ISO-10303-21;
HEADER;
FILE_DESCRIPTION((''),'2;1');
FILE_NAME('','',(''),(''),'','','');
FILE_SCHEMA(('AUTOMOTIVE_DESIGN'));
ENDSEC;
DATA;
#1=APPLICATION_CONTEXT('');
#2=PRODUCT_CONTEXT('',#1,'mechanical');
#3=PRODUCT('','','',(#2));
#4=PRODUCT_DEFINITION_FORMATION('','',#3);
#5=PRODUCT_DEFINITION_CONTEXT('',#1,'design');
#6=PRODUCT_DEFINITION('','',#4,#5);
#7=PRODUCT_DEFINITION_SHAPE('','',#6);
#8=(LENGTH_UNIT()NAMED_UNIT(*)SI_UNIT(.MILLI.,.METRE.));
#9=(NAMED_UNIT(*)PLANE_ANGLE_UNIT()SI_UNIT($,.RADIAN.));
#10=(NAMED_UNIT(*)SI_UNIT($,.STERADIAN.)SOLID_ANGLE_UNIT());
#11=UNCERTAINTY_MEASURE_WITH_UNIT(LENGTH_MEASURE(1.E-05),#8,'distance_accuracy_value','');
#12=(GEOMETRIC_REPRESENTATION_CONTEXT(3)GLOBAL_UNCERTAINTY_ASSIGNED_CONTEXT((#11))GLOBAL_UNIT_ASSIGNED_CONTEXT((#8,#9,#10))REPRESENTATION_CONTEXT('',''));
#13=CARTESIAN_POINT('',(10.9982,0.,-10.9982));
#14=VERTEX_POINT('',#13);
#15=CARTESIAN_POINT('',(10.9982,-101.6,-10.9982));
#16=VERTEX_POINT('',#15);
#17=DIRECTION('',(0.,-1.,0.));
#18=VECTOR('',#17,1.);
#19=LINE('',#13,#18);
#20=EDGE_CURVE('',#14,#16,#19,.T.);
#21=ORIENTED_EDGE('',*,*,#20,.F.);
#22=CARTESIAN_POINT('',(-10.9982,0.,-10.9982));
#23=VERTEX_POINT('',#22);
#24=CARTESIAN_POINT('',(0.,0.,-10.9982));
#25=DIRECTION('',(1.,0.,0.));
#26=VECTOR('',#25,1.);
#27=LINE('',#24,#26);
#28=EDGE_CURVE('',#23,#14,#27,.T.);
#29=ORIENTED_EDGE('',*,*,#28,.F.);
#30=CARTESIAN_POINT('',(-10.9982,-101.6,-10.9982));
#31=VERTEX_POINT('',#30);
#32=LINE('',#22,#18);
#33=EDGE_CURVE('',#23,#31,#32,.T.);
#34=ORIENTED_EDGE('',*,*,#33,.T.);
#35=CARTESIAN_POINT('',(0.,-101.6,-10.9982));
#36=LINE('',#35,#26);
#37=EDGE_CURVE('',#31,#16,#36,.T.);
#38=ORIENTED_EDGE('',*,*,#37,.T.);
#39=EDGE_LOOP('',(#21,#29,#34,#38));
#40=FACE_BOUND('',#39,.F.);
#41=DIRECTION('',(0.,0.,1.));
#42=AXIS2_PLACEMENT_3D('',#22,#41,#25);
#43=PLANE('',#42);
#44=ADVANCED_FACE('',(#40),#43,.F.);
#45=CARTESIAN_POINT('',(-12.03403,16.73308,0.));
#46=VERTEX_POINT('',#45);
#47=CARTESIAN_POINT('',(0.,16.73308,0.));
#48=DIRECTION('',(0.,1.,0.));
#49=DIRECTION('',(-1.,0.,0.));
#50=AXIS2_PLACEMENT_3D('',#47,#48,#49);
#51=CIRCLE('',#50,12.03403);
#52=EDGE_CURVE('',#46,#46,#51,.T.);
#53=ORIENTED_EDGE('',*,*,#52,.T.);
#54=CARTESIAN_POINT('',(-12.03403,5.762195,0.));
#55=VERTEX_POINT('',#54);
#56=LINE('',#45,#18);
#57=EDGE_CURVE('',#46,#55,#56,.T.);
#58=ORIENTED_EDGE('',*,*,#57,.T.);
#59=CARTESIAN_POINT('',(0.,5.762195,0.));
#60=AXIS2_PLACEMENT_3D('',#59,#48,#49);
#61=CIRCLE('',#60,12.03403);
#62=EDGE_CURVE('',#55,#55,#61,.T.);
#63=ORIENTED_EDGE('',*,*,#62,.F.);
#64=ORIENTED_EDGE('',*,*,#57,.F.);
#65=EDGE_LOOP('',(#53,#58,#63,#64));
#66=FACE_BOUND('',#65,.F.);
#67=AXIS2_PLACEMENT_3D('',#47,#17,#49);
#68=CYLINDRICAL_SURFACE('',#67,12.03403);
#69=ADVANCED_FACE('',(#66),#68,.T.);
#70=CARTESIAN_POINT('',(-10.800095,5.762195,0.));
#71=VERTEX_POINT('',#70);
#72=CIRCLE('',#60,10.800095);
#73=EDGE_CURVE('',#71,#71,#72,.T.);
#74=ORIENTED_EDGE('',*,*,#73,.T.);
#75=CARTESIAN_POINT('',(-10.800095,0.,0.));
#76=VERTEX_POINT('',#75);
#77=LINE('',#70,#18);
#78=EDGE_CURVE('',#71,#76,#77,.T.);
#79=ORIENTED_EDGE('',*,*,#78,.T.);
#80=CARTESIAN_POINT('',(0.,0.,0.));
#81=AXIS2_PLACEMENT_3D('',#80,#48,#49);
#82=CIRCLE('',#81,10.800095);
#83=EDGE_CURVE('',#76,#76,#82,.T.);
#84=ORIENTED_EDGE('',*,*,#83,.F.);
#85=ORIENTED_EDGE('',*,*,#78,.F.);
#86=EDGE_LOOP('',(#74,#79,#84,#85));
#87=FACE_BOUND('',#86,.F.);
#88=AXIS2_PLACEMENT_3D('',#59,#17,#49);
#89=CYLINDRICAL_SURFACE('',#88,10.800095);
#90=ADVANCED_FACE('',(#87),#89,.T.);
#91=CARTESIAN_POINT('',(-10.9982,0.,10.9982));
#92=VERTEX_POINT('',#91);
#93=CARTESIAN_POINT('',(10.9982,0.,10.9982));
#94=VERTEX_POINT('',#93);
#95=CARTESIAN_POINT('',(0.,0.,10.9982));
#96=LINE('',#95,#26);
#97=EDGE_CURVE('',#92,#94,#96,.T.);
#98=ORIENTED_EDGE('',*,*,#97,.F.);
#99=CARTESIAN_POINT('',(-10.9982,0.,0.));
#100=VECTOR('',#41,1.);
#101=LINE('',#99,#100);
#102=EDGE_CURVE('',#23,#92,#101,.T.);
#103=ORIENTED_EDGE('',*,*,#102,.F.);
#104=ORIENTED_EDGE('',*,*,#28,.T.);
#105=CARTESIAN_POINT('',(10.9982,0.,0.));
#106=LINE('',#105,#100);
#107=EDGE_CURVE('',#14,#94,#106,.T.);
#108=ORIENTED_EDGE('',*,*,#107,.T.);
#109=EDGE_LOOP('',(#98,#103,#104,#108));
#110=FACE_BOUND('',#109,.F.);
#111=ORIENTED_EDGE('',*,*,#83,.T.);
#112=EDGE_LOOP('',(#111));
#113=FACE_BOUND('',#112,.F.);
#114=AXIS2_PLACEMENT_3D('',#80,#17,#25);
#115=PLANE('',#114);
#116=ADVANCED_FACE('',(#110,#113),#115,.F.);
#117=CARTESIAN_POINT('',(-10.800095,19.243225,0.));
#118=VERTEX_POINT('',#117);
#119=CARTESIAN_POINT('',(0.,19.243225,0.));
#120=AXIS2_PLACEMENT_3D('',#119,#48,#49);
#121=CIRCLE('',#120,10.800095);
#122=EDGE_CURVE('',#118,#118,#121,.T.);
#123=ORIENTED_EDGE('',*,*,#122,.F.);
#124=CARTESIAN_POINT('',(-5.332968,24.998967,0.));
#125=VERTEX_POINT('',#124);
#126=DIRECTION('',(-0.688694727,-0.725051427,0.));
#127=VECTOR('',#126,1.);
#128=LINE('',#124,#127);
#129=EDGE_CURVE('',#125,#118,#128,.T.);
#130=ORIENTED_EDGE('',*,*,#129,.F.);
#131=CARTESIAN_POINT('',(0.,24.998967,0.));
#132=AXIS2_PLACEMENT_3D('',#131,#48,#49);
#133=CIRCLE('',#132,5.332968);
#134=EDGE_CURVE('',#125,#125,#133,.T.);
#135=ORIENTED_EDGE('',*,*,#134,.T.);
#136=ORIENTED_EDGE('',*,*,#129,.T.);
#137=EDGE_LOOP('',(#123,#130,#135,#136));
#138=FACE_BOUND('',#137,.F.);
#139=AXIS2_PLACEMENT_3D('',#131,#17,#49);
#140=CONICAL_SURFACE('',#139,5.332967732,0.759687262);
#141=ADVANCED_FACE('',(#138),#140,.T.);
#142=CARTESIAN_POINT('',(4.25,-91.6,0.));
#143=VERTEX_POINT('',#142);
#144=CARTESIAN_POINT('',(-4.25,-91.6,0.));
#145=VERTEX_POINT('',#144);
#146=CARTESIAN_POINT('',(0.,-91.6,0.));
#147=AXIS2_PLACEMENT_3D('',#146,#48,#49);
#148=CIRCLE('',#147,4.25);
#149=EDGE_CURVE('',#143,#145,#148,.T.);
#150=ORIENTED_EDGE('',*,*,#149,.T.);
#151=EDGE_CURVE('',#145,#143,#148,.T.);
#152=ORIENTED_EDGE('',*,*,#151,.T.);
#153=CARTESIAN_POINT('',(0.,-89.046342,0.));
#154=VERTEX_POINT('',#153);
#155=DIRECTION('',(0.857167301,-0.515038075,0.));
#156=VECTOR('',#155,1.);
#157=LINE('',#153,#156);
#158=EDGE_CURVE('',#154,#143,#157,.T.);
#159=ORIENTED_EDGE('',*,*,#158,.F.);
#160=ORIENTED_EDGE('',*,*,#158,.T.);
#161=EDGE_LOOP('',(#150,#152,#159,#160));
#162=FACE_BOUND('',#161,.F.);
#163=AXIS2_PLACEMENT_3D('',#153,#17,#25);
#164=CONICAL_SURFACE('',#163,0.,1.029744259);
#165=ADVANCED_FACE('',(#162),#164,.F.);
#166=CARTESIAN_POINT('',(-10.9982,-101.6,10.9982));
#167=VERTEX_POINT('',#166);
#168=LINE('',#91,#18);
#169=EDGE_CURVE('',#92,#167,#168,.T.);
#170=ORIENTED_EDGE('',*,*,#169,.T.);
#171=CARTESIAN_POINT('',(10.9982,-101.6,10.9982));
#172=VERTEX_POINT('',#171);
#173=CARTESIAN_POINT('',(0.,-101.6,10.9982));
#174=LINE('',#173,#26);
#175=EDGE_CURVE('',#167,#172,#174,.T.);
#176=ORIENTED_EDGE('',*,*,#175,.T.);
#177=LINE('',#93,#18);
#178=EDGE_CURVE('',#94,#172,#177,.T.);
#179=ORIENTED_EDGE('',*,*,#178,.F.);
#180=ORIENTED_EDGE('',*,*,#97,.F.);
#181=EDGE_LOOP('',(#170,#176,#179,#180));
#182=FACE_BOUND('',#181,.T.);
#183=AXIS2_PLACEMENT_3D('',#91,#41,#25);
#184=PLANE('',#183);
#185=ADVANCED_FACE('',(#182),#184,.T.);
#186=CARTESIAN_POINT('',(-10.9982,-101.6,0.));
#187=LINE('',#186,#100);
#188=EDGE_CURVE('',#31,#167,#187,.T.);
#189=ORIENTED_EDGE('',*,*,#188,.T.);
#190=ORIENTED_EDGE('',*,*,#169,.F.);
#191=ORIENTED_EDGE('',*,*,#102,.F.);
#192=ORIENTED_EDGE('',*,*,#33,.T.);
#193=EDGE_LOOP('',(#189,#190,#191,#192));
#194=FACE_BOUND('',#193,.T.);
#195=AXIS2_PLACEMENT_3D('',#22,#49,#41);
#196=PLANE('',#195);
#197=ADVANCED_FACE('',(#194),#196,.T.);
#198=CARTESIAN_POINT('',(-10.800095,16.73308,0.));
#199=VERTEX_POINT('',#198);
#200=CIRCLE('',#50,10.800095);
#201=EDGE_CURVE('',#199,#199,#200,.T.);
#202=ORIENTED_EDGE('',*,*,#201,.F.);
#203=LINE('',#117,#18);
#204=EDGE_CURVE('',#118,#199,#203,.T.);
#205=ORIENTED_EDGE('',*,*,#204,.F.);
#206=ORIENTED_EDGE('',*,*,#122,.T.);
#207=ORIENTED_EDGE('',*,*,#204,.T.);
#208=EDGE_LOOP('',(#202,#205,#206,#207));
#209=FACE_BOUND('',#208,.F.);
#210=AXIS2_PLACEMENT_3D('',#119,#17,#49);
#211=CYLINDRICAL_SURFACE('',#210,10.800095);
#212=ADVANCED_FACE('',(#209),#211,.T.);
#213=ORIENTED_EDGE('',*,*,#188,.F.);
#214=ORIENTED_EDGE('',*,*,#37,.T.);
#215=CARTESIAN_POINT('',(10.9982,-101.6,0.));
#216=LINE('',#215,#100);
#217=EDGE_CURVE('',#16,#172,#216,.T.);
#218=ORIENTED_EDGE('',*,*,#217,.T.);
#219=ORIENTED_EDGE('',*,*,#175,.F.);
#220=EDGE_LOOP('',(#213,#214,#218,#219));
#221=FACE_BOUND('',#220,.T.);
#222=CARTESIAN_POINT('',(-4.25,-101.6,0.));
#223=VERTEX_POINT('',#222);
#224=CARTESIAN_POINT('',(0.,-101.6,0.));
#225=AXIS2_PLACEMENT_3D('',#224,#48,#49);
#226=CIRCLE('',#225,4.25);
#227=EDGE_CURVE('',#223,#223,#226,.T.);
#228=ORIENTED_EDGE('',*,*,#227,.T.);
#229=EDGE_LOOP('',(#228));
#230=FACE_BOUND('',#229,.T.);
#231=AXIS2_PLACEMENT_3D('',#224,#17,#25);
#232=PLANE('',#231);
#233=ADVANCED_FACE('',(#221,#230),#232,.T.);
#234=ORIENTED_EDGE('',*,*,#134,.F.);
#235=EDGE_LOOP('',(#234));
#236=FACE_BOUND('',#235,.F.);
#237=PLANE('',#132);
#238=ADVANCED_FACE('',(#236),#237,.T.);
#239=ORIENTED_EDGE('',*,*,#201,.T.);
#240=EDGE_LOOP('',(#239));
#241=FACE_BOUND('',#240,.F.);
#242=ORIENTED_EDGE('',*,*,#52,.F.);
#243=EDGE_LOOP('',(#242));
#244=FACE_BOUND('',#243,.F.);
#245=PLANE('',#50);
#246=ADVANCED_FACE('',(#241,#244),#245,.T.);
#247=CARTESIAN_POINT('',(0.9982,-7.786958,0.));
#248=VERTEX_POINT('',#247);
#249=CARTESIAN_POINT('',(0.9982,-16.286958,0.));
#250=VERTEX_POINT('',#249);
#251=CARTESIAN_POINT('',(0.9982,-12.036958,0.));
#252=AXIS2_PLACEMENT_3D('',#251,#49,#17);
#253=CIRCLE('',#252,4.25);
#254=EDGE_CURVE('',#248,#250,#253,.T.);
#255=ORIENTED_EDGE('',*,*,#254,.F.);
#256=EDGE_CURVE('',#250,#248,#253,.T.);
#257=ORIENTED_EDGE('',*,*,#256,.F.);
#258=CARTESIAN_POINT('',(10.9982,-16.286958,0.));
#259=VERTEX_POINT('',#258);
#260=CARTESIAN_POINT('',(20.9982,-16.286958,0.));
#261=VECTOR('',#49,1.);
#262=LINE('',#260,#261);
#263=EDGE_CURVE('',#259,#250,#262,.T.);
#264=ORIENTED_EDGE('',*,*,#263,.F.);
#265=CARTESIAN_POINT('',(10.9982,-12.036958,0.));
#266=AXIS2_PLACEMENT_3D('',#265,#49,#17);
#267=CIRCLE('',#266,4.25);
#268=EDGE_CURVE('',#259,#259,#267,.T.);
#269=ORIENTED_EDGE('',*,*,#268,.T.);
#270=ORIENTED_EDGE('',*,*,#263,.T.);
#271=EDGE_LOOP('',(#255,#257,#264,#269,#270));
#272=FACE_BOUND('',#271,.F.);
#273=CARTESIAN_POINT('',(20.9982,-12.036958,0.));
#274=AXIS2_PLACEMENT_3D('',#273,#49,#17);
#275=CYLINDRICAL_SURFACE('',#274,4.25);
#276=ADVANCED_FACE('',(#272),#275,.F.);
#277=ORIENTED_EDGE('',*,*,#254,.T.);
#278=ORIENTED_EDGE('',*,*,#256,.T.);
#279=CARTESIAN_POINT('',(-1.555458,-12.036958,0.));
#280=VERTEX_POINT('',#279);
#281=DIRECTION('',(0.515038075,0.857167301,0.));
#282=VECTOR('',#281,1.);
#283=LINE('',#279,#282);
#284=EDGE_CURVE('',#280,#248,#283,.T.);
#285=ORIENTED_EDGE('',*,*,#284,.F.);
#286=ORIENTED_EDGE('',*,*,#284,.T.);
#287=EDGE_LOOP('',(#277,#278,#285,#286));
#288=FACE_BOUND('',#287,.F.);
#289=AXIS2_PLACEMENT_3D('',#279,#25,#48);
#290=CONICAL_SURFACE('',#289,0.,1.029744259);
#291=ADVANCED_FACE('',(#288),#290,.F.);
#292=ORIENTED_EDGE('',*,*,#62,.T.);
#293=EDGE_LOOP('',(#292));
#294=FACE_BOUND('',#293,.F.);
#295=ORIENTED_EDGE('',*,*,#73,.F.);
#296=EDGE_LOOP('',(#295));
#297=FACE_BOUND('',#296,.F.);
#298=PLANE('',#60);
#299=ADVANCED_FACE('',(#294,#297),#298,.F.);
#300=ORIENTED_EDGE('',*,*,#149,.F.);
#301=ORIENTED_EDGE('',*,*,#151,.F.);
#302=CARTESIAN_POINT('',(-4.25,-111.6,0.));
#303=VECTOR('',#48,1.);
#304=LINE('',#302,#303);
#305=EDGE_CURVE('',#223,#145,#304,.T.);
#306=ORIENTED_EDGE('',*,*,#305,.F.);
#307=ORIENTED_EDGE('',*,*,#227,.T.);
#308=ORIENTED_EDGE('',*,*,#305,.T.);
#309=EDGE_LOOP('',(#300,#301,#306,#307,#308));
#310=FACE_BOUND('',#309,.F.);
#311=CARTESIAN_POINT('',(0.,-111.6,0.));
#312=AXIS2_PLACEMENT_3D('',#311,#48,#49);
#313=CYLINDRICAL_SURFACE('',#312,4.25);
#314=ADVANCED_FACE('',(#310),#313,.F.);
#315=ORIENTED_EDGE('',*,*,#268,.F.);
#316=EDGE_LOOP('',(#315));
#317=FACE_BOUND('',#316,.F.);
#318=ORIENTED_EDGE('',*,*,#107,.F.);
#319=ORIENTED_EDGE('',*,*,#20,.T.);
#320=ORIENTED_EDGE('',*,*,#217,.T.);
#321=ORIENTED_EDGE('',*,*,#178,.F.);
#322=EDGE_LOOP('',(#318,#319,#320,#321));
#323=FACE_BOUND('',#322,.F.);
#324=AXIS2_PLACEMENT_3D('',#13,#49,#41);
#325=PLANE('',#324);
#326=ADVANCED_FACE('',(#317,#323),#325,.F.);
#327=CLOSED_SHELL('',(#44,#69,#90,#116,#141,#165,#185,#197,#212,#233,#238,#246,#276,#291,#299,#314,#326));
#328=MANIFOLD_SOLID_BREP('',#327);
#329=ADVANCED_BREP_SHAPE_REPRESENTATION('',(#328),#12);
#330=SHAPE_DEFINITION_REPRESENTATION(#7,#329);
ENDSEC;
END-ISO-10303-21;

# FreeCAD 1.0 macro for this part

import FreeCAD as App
import Part
import Sketcher
Q = App.Units.Quantity


def add_polygon(sketch, points):
    """Adds a closed chain of lines whose ends are joined by coincident constraints."""
    first, n = sketch.GeometryCount, len(points)
    for a, b in zip(points, points[1:] + points[:1]):
        sketch.addGeometry(Part.LineSegment(App.Vector(*a, 0), App.Vector(*b, 0)), False)
    for i in range(n):
        sketch.addConstraint(Sketcher.Constraint("Coincident", first + i, 2, first + (i + 1) % n, 1))

doc = App.newDocument("Part")
body = doc.addObject("PartDesign::Body", "Body")

# Sketch on XZ plane
sketch1 = body.newObject("Sketcher::SketchObject", "Sketch")
sketch1.AttachmentSupport = (doc.getObject("XZ_Plane"), [""])
sketch1.MapMode = "FlatFace"
add_polygon(sketch1, [(-10.9982, 10.9982), (-10.9982, -10.9982), (10.9982, -10.9982), (10.9982, 10.9982)])  # lines 0-3
sketch1.addConstraint(Sketcher.Constraint("Vertical", 0))
sketch1.addConstraint(Sketcher.Constraint("Horizontal", 1))
sketch1.addConstraint(Sketcher.Constraint("Vertical", 2))
sketch1.addConstraint(Sketcher.Constraint("Horizontal", 3))
sketch1.addConstraint(Sketcher.Constraint("Symmetric", 0, 2, 2, 2, -1, 1))
sketch1.addConstraint(Sketcher.Constraint("Equal", 3, 0))
sketch1.addConstraint(Sketcher.Constraint("DistanceX", 1, 1, 1, 2, Q("21.9964 mm")))
pad1 = body.newObject("PartDesign::Pad", "Pad")
pad1.Profile = sketch1
pad1.Length = 101.6

# Sketch on XY plane
sketch2 = body.newObject("Sketcher::SketchObject", "Sketch001")
sketch2.AttachmentSupport = (doc.getObject("XY_Plane"), [""])
sketch2.MapMode = "FlatFace"
add_polygon(sketch2, [(-10.800095, 0), (0, 0), (0, 24.998967), (-5.332968, 24.998967), (-10.800095, 19.243225), (-10.800095, 16.73308), (-12.03403, 16.73308), (-12.03403, 5.762195), (-10.800095, 5.762195)])  # lines 0-8
sketch2.addConstraint(Sketcher.Constraint("Horizontal", 0))
sketch2.addConstraint(Sketcher.Constraint("Vertical", 1))
sketch2.addConstraint(Sketcher.Constraint("Horizontal", 2))
sketch2.addConstraint(Sketcher.Constraint("Vertical", 4))
sketch2.addConstraint(Sketcher.Constraint("Horizontal", 5))
sketch2.addConstraint(Sketcher.Constraint("Vertical", 6))
sketch2.addConstraint(Sketcher.Constraint("Horizontal", 7))
sketch2.addConstraint(Sketcher.Constraint("Vertical", 8))
sketch2.addConstraint(Sketcher.Constraint("Coincident", 0, 2, -1, 1))
sketch2.addConstraint(Sketcher.Constraint("Vertical", 4, 2, 7, 2))
sketch2.addConstraint(Sketcher.Constraint("Distance", 3, Q("7.93839 mm")))
sketch2.addConstraint(Sketcher.Constraint("DistanceX", 0, 1, 0, 2, Q("10.800095 mm")))
sketch2.addConstraint(Sketcher.Constraint("DistanceX", 2, 2, 2, 1, Q("5.332968 mm")))
sketch2.addConstraint(Sketcher.Constraint("DistanceX", 5, 2, 5, 1, Q("1.233934 mm")))
sketch2.addConstraint(Sketcher.Constraint("DistanceY", 1, 1, 1, 2, Q("24.998967 mm")))
sketch2.addConstraint(Sketcher.Constraint("DistanceY", 4, 2, 4, 1, Q("2.510145 mm")))
sketch2.addConstraint(Sketcher.Constraint("DistanceY", 6, 2, 6, 1, Q("10.970885 mm")))
revolution = body.newObject("PartDesign::Revolution", "Revolution")
revolution.Profile = sketch2
revolution.ReferenceAxis = (sketch2, ["V_Axis"])
revolution.Angle = 360

# Sketch on YZ plane
sketch3 = body.newObject("Sketcher::SketchObject", "Sketch002")
sketch3.AttachmentSupport = (doc.getObject("YZ_Plane"), [""])
sketch3.MapMode = "FlatFace"
sketch3.AttachmentOffset = App.Placement(App.Vector(0, 0, 10.9982), App.Rotation())
sketch3.addGeometry(Part.Circle(App.Vector(-12.036958, 0, 0), App.Vector(0, 0, 1), 4.25), False)
sketch3.addConstraint(Sketcher.Constraint("PointOnObject", 0, 3, -1))
sketch3.addConstraint(Sketcher.Constraint("Diameter", 0, Q("8.5 mm")))
sketch3.addConstraint(Sketcher.Constraint("DistanceX", 0, 3, -1, 1, Q("12.036958 mm")))
doc.recompute()
hole = body.newObject("PartDesign::Hole", "Hole")
hole.Profile = sketch3
hole.ThreadType = "None"
hole.Diameter = 8.5
hole.DepthType = "Dimension"
hole.Depth = 10
hole.DrillPoint = "Angled"
hole.DrillPointAngle = 118

# Sketch on XZ plane
sketch4 = body.newObject("Sketcher::SketchObject", "Sketch003")
sketch4.AttachmentSupport = (doc.getObject("XZ_Plane"), [""])
sketch4.MapMode = "FlatFace"
sketch4.AttachmentOffset = App.Placement(App.Vector(0, 0, 101.6), App.Rotation())
sketch4.addGeometry(Part.Circle(App.Vector(0, 0, 0), App.Vector(0, 0, 1), 4.25), False)
sketch4.addConstraint(Sketcher.Constraint("Coincident", 0, 3, -1, 1))
sketch4.addConstraint(Sketcher.Constraint("Diameter", 0, Q("8.5 mm")))
doc.recompute()
hole2 = body.newObject("PartDesign::Hole", "Hole001")
hole2.Profile = sketch4
hole2.ThreadType = "None"
hole2.Diameter = 8.5
hole2.DepthType = "Dimension"
hole2.Depth = 10
hole2.DrillPoint = "Angled"
hole2.DrillPointAngle = 118

doc.recompute()
